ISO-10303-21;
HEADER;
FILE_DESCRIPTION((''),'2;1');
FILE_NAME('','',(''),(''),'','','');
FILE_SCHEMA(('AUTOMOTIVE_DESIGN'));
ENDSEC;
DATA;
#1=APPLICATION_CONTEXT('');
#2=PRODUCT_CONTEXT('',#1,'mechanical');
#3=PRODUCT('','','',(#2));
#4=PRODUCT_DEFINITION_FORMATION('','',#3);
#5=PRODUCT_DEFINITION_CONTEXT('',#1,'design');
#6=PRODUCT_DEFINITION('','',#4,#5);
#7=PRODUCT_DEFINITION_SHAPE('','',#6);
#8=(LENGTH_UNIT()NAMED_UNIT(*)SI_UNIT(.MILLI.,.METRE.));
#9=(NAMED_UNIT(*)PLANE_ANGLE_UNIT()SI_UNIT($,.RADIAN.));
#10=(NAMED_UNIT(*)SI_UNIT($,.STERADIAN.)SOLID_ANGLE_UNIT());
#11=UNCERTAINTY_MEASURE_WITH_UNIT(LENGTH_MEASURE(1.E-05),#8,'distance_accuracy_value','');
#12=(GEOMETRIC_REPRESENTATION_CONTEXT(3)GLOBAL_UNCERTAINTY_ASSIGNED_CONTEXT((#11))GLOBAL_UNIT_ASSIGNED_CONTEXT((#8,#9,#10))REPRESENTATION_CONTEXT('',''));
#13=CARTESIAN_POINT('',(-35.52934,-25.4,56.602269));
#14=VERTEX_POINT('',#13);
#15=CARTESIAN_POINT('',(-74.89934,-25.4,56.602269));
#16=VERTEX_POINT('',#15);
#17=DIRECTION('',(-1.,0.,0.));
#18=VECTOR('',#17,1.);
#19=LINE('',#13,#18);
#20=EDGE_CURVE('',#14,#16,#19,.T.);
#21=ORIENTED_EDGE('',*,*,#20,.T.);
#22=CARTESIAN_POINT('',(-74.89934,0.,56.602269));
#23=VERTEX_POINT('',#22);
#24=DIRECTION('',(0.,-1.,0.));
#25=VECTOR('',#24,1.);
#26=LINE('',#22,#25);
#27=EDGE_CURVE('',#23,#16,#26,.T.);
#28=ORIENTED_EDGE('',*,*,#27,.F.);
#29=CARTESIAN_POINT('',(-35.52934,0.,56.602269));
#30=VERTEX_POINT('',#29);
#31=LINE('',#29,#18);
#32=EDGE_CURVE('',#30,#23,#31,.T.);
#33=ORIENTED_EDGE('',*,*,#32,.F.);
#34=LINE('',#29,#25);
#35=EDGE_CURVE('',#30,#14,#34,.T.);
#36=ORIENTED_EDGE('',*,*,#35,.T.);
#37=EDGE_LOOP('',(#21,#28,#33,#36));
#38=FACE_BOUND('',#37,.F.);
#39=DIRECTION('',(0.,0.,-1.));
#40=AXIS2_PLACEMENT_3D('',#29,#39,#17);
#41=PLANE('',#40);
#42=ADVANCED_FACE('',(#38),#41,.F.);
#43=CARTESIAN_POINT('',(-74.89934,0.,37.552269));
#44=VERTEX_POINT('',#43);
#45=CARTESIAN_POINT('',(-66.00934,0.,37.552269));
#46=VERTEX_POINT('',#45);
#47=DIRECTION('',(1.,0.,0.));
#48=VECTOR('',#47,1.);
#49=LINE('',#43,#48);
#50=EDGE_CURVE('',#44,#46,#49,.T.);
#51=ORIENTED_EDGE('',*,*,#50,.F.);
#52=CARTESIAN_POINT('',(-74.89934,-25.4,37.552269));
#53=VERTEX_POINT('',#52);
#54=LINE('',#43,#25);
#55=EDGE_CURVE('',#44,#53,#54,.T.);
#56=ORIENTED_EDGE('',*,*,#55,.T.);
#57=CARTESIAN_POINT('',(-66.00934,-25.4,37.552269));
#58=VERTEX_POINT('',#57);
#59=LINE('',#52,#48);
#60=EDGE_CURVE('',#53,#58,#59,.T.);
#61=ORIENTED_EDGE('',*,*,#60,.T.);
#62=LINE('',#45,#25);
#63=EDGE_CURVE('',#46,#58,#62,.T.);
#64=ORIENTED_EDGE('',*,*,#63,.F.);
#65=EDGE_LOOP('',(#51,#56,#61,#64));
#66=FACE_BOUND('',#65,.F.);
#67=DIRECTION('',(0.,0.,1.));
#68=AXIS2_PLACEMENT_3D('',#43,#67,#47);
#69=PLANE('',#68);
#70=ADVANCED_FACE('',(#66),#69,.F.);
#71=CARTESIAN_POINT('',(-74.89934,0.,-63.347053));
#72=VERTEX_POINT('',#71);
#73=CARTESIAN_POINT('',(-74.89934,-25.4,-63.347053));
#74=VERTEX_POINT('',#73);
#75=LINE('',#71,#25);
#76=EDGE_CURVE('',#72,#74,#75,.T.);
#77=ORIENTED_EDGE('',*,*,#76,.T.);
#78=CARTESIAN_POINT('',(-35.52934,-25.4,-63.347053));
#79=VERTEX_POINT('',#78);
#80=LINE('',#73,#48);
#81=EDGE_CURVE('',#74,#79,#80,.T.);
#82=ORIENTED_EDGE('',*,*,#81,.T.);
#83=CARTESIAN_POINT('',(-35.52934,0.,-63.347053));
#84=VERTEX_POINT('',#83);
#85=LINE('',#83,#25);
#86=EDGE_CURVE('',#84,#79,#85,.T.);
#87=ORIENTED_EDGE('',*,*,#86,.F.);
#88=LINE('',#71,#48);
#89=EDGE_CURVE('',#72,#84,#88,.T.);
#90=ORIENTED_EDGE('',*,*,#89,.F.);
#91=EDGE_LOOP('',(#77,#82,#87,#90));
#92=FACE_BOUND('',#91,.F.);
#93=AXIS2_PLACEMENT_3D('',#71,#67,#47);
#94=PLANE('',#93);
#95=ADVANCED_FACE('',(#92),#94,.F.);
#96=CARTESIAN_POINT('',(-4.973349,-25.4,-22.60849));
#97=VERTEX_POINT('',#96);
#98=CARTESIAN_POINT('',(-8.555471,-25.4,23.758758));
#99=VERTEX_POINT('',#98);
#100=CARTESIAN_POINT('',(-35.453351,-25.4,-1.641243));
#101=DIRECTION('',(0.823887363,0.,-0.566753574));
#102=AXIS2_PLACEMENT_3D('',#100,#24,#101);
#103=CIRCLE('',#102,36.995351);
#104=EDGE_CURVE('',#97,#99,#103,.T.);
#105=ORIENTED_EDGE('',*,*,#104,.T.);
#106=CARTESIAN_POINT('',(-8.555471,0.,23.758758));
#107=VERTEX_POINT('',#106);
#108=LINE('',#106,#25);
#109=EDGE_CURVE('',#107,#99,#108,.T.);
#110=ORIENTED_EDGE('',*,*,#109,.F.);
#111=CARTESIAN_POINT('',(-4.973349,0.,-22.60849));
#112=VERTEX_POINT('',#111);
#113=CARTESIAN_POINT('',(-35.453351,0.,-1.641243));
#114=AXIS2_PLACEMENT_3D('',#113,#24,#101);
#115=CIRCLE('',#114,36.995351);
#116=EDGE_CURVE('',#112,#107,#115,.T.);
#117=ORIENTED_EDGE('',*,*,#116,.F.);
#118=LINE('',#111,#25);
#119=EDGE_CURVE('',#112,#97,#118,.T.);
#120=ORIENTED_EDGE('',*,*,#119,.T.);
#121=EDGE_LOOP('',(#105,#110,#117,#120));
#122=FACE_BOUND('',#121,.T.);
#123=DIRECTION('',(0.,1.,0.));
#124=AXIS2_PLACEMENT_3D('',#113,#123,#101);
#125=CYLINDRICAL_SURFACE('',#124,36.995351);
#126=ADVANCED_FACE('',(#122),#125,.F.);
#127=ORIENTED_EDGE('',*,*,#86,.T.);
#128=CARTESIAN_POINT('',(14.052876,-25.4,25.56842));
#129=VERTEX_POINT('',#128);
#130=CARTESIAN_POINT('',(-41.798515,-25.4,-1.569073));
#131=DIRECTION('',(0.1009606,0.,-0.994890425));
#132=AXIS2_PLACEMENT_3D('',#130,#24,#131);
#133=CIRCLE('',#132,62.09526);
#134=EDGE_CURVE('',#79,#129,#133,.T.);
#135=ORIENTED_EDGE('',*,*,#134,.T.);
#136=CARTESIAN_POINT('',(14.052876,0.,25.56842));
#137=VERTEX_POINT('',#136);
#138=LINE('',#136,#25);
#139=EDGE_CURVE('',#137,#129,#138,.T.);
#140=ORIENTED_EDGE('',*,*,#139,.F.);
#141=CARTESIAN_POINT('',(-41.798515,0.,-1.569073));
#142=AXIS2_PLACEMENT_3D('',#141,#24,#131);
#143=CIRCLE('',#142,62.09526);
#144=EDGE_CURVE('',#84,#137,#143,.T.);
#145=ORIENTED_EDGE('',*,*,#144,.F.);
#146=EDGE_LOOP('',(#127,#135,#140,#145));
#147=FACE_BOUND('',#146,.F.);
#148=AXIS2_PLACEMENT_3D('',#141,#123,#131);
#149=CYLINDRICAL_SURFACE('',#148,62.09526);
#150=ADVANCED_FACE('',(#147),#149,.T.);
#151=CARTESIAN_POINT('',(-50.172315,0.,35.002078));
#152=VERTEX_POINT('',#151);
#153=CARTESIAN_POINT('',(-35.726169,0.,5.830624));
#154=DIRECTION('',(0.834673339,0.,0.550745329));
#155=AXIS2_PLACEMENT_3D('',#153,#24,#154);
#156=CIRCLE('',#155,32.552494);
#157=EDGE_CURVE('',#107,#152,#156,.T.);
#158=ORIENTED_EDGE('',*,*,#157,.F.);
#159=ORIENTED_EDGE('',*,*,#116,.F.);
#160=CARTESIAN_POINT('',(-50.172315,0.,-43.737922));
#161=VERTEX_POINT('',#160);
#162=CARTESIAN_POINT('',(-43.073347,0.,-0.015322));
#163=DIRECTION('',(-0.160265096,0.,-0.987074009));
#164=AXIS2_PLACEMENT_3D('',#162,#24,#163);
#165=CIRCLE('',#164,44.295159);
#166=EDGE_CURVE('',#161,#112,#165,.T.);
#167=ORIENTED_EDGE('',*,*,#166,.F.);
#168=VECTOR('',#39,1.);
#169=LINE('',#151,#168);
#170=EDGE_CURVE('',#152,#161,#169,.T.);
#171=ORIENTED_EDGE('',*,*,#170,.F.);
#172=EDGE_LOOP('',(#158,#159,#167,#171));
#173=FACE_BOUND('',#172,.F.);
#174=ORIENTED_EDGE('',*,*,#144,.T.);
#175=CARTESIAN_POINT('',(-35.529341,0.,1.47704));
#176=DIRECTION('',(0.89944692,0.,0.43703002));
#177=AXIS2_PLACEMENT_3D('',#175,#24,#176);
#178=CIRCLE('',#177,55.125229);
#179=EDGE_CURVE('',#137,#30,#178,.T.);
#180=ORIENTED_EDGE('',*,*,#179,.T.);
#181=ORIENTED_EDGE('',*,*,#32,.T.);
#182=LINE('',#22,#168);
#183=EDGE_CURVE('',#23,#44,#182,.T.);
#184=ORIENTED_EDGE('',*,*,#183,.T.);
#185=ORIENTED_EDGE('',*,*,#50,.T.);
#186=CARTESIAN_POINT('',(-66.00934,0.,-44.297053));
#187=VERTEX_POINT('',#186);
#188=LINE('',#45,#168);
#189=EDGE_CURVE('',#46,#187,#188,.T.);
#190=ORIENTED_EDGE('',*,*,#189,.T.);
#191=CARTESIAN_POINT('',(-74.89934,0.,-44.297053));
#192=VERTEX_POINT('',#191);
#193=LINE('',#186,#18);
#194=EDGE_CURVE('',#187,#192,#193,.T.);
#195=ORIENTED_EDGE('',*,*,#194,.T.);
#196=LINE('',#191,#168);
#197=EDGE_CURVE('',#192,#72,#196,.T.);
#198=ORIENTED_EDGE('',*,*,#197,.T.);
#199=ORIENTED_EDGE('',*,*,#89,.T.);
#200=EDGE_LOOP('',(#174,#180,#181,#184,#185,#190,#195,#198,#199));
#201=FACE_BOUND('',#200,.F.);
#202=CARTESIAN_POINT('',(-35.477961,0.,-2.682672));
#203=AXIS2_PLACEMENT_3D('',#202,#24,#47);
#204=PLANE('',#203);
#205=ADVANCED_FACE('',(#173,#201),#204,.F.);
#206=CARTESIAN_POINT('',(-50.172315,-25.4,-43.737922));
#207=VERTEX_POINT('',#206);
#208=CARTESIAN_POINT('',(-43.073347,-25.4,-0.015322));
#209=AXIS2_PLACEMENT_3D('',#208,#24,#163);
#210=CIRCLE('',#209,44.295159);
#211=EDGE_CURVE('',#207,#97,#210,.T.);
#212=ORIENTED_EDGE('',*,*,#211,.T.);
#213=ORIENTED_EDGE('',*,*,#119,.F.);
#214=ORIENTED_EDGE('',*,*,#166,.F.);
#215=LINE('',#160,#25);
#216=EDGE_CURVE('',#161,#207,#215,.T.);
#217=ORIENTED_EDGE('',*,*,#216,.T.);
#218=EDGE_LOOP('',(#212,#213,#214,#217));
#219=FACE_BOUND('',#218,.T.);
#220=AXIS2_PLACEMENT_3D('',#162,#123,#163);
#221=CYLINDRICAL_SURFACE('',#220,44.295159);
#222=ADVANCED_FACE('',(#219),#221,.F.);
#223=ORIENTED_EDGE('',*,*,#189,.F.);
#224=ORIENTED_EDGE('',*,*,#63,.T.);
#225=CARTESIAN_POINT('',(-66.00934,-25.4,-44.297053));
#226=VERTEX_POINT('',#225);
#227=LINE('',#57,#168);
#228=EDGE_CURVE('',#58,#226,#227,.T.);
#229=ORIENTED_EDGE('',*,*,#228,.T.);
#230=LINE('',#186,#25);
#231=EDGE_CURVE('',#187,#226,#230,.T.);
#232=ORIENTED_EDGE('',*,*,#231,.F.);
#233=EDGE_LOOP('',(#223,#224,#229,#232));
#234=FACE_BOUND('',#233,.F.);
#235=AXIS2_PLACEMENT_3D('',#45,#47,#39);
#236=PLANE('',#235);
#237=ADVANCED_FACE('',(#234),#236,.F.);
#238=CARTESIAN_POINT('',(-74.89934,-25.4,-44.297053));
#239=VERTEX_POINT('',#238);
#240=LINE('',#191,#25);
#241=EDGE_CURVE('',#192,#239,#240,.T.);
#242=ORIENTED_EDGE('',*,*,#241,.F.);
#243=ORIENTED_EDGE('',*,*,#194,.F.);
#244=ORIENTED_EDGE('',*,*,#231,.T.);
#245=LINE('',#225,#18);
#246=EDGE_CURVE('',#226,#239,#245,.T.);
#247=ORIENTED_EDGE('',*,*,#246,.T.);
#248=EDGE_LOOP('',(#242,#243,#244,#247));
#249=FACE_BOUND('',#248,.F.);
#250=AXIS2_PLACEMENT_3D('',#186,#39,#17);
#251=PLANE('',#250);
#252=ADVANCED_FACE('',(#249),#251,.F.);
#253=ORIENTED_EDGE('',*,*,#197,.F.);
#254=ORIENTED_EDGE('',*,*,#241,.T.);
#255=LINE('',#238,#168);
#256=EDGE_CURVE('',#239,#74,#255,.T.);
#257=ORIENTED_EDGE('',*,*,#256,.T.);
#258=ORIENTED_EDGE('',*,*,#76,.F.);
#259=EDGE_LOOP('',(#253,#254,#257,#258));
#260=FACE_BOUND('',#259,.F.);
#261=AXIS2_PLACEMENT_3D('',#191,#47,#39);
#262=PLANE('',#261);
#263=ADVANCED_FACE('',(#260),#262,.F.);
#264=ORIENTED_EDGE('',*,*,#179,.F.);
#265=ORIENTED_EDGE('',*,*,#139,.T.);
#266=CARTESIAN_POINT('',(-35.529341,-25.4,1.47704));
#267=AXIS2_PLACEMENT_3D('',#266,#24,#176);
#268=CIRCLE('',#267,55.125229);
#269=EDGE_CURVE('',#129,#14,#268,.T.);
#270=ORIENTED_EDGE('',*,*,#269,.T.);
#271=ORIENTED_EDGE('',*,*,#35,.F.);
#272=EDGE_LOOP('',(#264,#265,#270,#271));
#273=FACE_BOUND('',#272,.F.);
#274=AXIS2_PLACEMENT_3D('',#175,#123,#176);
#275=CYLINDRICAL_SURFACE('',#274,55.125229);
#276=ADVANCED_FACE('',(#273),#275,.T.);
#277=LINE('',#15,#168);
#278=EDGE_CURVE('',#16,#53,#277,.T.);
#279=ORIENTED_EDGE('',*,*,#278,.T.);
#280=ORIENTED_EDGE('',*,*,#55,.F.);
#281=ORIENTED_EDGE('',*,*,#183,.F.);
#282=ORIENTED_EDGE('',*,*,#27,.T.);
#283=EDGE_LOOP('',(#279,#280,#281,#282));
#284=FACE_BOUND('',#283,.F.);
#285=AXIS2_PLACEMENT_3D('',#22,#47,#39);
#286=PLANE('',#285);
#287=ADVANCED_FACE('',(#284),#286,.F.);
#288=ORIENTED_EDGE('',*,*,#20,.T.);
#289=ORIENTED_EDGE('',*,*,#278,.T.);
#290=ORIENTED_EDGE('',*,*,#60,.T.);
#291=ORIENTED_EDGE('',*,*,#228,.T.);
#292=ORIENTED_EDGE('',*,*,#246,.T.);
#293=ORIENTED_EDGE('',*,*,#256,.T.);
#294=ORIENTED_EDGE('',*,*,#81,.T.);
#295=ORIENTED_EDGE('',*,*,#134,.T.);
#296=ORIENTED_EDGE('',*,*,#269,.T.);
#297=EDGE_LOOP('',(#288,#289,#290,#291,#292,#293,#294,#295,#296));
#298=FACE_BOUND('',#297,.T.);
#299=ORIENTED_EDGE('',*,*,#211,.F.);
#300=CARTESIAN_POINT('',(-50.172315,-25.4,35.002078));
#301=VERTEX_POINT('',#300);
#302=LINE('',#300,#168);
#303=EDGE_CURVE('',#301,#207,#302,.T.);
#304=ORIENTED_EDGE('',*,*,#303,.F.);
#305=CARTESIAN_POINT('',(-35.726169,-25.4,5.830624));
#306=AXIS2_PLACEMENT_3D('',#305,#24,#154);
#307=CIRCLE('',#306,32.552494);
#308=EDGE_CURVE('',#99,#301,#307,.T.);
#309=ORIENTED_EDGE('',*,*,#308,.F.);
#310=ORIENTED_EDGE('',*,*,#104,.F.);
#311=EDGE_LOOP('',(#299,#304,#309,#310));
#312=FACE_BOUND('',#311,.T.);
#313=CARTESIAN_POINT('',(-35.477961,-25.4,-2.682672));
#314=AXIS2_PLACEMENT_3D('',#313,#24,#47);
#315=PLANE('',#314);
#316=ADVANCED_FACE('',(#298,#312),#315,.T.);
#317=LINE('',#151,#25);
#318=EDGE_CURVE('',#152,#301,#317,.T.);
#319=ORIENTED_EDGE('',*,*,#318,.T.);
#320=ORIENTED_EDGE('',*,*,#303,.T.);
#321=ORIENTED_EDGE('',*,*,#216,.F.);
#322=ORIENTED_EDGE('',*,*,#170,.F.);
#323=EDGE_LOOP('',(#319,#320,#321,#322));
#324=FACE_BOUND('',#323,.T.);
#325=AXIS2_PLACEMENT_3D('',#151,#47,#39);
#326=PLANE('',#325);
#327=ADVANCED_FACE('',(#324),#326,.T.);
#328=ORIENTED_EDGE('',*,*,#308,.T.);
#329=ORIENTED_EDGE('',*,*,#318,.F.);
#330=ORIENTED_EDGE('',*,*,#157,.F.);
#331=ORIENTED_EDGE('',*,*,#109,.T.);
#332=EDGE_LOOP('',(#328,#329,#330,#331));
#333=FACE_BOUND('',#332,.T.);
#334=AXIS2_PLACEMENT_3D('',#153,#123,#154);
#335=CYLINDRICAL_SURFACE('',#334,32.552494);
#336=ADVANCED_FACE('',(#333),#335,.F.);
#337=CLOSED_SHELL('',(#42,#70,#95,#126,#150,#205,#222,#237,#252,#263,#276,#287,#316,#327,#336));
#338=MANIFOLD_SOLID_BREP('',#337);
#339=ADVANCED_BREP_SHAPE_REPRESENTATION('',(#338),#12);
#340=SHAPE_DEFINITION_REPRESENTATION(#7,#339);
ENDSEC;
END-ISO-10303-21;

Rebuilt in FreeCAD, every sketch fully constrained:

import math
import FreeCAD as App
import Part
import Sketcher
from FreeCAD import Vector
Q = App.Units.Quantity

doc = App.newDocument("Part")
body = doc.addObject("PartDesign::Body", "Body")

sketch1 = body.newObject("Sketcher::SketchObject", "Sketch")
sketch1.AttachmentSupport = (doc.getObject("XZ_Plane"), [""])
sketch1.MapMode = "FlatFace"
sketch1.addGeometry(Part.LineSegment(Vector(-36, 57, 0), Vector(-75, 57, 0)), False)
sketch1.addGeometry(Part.LineSegment(Vector(-75, 57, 0), Vector(-75, 38, 0)), False)
sketch1.addGeometry(Part.LineSegment(Vector(-75, 38, 0), Vector(-66, 38, 0)), False)
sketch1.addGeometry(Part.LineSegment(Vector(-66, 38, 0), Vector(-66, -44, 0)), False)
sketch1.addGeometry(Part.LineSegment(Vector(-66, -44, 0), Vector(-75, -44, 0)), False)
sketch1.addGeometry(Part.LineSegment(Vector(-75, -44, 0), Vector(-75, -63, 0)), False)
sketch1.addGeometry(Part.LineSegment(Vector(-75, -63, 0), Vector(-36, -63, 0)), False)
sketch1.addGeometry(Part.ArcOfCircle(Part.Circle(Vector(-42, -2, 0), Vector(0, 0, 1), 62), math.radians(-84), math.radians(26)), False)
sketch1.addGeometry(Part.ArcOfCircle(Part.Circle(Vector(-36, 1, 0), Vector(0, 0, 1), 55), math.radians(26), math.radians(90)), False)
sketch1.addConstraint(Sketcher.Constraint("Coincident", 0, 2, 1, 1))
sketch1.addConstraint(Sketcher.Constraint("Coincident", 1, 2, 2, 1))
sketch1.addConstraint(Sketcher.Constraint("Coincident", 2, 2, 3, 1))
sketch1.addConstraint(Sketcher.Constraint("Coincident", 3, 2, 4, 1))
sketch1.addConstraint(Sketcher.Constraint("Coincident", 4, 2, 5, 1))
sketch1.addConstraint(Sketcher.Constraint("Coincident", 5, 2, 6, 1))
sketch1.addConstraint(Sketcher.Constraint("Coincident", 6, 2, 7, 1))
sketch1.addConstraint(Sketcher.Constraint("Tangent", 7, 2, 8, 1))
sketch1.addConstraint(Sketcher.Constraint("Tangent", 8, 2, 0, 1))
sketch1.addConstraint(Sketcher.Constraint("Horizontal", 0))
sketch1.addConstraint(Sketcher.Constraint("Vertical", 1))
sketch1.addConstraint(Sketcher.Constraint("Horizontal", 2))
sketch1.addConstraint(Sketcher.Constraint("Vertical", 3))
sketch1.addConstraint(Sketcher.Constraint("Horizontal", 4))
sketch1.addConstraint(Sketcher.Constraint("Vertical", 5))
sketch1.addConstraint(Sketcher.Constraint("Horizontal", 6))
sketch1.addConstraint(Sketcher.Constraint("Vertical", 1, 2, 4, 2))
sketch1.addConstraint(Sketcher.Constraint("Vertical", 8, 3, 6, 2))
sketch1.addConstraint(Sketcher.Constraint("Equal", 1, 5))
sketch1.addConstraint(Sketcher.Constraint("DistanceX", 0, 2, 0, 1, Q("1.55 in")))
sketch1.addConstraint(Sketcher.Constraint("DistanceX", 2, 1, 2, 2, Q("0.35 in")))
sketch1.addConstraint(Sketcher.Constraint("DistanceY", 1, 2, 1, 1, Q("0.75 in")))
sketch1.addConstraint(Sketcher.Constraint("Radius", 7, 62.09526))
sketch1.addConstraint(Sketcher.Constraint("Radius", 8, 55.125229))
sketch1.addConstraint(Sketcher.Constraint("DistanceY", 3, 2, 3, 1, 81.849322))
sketch1.addConstraint(Sketcher.Constraint("DistanceX", 8, 3, -1, 1, 35.529341))
sketch1.addConstraint(Sketcher.Constraint("DistanceY", -1, 1, 8, 3, 1.47704))
pad1 = body.newObject("PartDesign::Pad", "Pad")
pad1.Profile = sketch1
pad1.Length = Q("1 in")

sketch2 = body.newObject("Sketcher::SketchObject", "Sketch001")
sketch2.AttachmentSupport = (doc.getObject("XZ_Plane"), [""])
sketch2.MapMode = "FlatFace"
sketch2.addGeometry(Part.ArcOfCircle(Part.Circle(Vector(-36, 6, 0), Vector(0, 0, 1), 33), math.radians(33), math.radians(116)), False)
sketch2.addGeometry(Part.LineSegment(Vector(-50, 35, 0), Vector(-50, -44, 0)), False)
sketch2.addGeometry(Part.ArcOfCircle(Part.Circle(Vector(-43, 0, 0), Vector(0, 0, 1), 44), math.radians(-99), math.radians(-31)), False)
sketch2.addGeometry(Part.ArcOfCircle(Part.Circle(Vector(-35, -2, 0), Vector(0, 0, 1), 37), math.radians(-35), math.radians(43)), False)
sketch2.addConstraint(Sketcher.Constraint("Coincident", 0, 2, 1, 1))
sketch2.addConstraint(Sketcher.Constraint("Coincident", 1, 2, 2, 1))
sketch2.addConstraint(Sketcher.Constraint("Coincident", 2, 2, 3, 1))
sketch2.addConstraint(Sketcher.Constraint("Coincident", 3, 2, 0, 1))
sketch2.addConstraint(Sketcher.Constraint("Vertical", 1))
sketch2.addConstraint(Sketcher.Constraint("DistanceY", 1, 2, 1, 1, Q("3.1 in")))
sketch2.addConstraint(Sketcher.Constraint("DistanceY", 3, 3, 3, 2, Q("1 in")))
sketch2.addConstraint(Sketcher.Constraint("DistanceX", 2, 3, 3, 3, Q("0.2999998 in")))
sketch2.addConstraint(Sketcher.Constraint("DistanceX", 3, 3, 2, 2, Q("1.2000001 in")))
sketch2.addConstraint(Sketcher.Constraint("Radius", 2, 44.295159))
sketch2.addConstraint(Sketcher.Constraint("Radius", 3, 36.995351))
sketch2.addConstraint(Sketcher.Constraint("Radius", 0, 32.552494))
sketch2.addConstraint(Sketcher.Constraint("DistanceY", 2, 3, 0, 2, 35.0174))
sketch2.addConstraint(Sketcher.Constraint("DistanceX", 0, 3, -1, 1, 35.726169))
sketch2.addConstraint(Sketcher.Constraint("DistanceY", 2, 3, -1, 1, 0.015322))
pocket1 = body.newObject("PartDesign::Pocket", "Pocket")
pocket1.Profile = sketch2
pocket1.Length = Q("1 in")
pocket1.Reversed = True

doc.recompute()
